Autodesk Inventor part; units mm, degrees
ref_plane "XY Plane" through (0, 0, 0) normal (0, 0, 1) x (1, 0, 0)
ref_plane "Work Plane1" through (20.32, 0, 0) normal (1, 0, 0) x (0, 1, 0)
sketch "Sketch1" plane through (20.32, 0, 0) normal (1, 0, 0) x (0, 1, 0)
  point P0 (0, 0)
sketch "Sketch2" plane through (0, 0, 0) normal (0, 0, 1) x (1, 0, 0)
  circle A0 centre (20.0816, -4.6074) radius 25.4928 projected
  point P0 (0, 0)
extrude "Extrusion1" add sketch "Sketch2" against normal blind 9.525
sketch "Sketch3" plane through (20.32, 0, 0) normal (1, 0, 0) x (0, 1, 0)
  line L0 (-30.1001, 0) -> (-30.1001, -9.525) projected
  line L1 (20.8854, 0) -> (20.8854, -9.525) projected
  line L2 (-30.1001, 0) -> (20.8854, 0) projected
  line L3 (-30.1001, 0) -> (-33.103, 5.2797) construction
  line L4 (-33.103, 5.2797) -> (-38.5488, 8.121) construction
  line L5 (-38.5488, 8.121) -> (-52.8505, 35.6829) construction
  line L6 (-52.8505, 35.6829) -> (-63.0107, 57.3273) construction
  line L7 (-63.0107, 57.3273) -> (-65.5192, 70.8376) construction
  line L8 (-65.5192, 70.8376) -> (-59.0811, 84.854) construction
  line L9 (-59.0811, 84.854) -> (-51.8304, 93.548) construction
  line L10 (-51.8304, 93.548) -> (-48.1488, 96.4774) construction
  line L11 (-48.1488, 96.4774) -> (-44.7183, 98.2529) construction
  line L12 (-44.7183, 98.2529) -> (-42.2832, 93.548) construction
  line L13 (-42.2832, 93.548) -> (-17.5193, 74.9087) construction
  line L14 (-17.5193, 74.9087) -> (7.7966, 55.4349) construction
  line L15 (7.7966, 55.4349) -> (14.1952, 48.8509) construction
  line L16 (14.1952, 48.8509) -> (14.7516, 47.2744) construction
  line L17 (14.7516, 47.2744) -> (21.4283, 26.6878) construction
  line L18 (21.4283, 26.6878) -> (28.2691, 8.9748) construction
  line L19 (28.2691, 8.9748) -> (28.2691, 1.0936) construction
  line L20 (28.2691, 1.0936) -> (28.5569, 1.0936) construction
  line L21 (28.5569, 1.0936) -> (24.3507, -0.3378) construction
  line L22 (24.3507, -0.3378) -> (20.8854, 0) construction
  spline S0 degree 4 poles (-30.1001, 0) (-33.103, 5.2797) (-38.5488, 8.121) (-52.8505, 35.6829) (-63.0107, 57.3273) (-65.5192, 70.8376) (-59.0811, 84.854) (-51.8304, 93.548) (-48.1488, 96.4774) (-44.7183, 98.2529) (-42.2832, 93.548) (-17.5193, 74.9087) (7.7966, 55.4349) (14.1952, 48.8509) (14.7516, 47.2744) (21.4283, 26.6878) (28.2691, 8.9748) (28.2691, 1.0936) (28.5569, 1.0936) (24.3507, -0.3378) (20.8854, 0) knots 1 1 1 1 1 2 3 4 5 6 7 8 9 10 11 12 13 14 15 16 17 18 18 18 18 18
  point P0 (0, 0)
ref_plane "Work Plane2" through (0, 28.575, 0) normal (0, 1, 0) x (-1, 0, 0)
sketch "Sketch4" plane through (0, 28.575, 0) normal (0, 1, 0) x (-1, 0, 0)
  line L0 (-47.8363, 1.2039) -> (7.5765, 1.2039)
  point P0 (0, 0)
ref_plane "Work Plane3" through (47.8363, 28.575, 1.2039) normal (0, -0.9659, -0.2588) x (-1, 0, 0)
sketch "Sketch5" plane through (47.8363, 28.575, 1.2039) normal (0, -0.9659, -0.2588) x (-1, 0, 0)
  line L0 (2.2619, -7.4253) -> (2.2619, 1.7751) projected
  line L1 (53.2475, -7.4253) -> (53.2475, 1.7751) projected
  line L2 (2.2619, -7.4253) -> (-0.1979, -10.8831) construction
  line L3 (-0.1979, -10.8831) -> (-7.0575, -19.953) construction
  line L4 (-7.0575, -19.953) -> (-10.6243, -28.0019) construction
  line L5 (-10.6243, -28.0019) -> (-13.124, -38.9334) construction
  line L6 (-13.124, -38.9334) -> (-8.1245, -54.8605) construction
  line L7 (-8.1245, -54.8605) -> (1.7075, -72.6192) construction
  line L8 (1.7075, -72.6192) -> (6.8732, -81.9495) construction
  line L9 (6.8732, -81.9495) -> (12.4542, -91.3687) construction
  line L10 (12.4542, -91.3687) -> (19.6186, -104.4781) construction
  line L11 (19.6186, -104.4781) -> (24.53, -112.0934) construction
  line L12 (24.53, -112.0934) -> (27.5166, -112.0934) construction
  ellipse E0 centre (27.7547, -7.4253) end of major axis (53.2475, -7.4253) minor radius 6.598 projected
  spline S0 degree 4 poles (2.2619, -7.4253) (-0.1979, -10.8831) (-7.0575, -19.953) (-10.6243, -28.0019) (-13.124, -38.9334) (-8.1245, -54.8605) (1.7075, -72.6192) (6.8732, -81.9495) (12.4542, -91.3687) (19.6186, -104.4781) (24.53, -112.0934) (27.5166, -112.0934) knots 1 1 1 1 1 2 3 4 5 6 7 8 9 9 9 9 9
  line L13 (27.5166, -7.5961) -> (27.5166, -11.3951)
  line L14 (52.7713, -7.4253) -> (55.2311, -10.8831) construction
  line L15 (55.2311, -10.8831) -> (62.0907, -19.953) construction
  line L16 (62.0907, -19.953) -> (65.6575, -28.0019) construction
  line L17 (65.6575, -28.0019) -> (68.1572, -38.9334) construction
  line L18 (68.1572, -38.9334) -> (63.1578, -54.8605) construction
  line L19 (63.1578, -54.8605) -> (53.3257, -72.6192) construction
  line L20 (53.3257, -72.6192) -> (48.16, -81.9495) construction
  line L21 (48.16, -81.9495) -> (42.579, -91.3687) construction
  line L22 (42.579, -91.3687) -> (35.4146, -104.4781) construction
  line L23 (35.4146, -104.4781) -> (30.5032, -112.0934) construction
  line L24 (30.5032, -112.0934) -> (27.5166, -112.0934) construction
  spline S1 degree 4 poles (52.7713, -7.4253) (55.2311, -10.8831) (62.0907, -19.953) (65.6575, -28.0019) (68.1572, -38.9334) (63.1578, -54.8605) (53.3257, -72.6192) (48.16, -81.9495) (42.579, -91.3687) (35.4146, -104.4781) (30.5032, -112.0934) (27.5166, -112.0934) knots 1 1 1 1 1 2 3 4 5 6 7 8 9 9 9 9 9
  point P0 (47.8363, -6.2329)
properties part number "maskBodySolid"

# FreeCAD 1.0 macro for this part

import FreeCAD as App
import Part
import Sketcher
from FreeCAD import Vector
Q = App.Units.Quantity

doc = App.newDocument("Part")
body = doc.addObject("PartDesign::Body", "Body")

# Sketch on XY plane
sketch1 = body.newObject("Sketcher::SketchObject", "Sketch")
sketch1.AttachmentSupport = (doc.getObject("XY_Plane"), [""])
sketch1.MapMode = "FlatFace"
sketch1.addGeometry(Part.Circle(Vector(20, -5, 0), Vector(0, 0, 1), 25), False)
sketch1.addConstraint([
    Sketcher.Constraint("Diameter", 0, Q("2.0073 in")),
    Sketcher.Constraint("DistanceY", 0, 3, -1, 1, Q("0.1814 in")),
    Sketcher.Constraint("DistanceX", -1, 1, 0, 3, Q("20.0816 mm")),
])
pad1 = body.newObject("PartDesign::Pad", "Pad")
pad1.Profile = sketch1
pad1.Length = Q("0.375 in")
pad1.Reversed = True

doc.recompute()
